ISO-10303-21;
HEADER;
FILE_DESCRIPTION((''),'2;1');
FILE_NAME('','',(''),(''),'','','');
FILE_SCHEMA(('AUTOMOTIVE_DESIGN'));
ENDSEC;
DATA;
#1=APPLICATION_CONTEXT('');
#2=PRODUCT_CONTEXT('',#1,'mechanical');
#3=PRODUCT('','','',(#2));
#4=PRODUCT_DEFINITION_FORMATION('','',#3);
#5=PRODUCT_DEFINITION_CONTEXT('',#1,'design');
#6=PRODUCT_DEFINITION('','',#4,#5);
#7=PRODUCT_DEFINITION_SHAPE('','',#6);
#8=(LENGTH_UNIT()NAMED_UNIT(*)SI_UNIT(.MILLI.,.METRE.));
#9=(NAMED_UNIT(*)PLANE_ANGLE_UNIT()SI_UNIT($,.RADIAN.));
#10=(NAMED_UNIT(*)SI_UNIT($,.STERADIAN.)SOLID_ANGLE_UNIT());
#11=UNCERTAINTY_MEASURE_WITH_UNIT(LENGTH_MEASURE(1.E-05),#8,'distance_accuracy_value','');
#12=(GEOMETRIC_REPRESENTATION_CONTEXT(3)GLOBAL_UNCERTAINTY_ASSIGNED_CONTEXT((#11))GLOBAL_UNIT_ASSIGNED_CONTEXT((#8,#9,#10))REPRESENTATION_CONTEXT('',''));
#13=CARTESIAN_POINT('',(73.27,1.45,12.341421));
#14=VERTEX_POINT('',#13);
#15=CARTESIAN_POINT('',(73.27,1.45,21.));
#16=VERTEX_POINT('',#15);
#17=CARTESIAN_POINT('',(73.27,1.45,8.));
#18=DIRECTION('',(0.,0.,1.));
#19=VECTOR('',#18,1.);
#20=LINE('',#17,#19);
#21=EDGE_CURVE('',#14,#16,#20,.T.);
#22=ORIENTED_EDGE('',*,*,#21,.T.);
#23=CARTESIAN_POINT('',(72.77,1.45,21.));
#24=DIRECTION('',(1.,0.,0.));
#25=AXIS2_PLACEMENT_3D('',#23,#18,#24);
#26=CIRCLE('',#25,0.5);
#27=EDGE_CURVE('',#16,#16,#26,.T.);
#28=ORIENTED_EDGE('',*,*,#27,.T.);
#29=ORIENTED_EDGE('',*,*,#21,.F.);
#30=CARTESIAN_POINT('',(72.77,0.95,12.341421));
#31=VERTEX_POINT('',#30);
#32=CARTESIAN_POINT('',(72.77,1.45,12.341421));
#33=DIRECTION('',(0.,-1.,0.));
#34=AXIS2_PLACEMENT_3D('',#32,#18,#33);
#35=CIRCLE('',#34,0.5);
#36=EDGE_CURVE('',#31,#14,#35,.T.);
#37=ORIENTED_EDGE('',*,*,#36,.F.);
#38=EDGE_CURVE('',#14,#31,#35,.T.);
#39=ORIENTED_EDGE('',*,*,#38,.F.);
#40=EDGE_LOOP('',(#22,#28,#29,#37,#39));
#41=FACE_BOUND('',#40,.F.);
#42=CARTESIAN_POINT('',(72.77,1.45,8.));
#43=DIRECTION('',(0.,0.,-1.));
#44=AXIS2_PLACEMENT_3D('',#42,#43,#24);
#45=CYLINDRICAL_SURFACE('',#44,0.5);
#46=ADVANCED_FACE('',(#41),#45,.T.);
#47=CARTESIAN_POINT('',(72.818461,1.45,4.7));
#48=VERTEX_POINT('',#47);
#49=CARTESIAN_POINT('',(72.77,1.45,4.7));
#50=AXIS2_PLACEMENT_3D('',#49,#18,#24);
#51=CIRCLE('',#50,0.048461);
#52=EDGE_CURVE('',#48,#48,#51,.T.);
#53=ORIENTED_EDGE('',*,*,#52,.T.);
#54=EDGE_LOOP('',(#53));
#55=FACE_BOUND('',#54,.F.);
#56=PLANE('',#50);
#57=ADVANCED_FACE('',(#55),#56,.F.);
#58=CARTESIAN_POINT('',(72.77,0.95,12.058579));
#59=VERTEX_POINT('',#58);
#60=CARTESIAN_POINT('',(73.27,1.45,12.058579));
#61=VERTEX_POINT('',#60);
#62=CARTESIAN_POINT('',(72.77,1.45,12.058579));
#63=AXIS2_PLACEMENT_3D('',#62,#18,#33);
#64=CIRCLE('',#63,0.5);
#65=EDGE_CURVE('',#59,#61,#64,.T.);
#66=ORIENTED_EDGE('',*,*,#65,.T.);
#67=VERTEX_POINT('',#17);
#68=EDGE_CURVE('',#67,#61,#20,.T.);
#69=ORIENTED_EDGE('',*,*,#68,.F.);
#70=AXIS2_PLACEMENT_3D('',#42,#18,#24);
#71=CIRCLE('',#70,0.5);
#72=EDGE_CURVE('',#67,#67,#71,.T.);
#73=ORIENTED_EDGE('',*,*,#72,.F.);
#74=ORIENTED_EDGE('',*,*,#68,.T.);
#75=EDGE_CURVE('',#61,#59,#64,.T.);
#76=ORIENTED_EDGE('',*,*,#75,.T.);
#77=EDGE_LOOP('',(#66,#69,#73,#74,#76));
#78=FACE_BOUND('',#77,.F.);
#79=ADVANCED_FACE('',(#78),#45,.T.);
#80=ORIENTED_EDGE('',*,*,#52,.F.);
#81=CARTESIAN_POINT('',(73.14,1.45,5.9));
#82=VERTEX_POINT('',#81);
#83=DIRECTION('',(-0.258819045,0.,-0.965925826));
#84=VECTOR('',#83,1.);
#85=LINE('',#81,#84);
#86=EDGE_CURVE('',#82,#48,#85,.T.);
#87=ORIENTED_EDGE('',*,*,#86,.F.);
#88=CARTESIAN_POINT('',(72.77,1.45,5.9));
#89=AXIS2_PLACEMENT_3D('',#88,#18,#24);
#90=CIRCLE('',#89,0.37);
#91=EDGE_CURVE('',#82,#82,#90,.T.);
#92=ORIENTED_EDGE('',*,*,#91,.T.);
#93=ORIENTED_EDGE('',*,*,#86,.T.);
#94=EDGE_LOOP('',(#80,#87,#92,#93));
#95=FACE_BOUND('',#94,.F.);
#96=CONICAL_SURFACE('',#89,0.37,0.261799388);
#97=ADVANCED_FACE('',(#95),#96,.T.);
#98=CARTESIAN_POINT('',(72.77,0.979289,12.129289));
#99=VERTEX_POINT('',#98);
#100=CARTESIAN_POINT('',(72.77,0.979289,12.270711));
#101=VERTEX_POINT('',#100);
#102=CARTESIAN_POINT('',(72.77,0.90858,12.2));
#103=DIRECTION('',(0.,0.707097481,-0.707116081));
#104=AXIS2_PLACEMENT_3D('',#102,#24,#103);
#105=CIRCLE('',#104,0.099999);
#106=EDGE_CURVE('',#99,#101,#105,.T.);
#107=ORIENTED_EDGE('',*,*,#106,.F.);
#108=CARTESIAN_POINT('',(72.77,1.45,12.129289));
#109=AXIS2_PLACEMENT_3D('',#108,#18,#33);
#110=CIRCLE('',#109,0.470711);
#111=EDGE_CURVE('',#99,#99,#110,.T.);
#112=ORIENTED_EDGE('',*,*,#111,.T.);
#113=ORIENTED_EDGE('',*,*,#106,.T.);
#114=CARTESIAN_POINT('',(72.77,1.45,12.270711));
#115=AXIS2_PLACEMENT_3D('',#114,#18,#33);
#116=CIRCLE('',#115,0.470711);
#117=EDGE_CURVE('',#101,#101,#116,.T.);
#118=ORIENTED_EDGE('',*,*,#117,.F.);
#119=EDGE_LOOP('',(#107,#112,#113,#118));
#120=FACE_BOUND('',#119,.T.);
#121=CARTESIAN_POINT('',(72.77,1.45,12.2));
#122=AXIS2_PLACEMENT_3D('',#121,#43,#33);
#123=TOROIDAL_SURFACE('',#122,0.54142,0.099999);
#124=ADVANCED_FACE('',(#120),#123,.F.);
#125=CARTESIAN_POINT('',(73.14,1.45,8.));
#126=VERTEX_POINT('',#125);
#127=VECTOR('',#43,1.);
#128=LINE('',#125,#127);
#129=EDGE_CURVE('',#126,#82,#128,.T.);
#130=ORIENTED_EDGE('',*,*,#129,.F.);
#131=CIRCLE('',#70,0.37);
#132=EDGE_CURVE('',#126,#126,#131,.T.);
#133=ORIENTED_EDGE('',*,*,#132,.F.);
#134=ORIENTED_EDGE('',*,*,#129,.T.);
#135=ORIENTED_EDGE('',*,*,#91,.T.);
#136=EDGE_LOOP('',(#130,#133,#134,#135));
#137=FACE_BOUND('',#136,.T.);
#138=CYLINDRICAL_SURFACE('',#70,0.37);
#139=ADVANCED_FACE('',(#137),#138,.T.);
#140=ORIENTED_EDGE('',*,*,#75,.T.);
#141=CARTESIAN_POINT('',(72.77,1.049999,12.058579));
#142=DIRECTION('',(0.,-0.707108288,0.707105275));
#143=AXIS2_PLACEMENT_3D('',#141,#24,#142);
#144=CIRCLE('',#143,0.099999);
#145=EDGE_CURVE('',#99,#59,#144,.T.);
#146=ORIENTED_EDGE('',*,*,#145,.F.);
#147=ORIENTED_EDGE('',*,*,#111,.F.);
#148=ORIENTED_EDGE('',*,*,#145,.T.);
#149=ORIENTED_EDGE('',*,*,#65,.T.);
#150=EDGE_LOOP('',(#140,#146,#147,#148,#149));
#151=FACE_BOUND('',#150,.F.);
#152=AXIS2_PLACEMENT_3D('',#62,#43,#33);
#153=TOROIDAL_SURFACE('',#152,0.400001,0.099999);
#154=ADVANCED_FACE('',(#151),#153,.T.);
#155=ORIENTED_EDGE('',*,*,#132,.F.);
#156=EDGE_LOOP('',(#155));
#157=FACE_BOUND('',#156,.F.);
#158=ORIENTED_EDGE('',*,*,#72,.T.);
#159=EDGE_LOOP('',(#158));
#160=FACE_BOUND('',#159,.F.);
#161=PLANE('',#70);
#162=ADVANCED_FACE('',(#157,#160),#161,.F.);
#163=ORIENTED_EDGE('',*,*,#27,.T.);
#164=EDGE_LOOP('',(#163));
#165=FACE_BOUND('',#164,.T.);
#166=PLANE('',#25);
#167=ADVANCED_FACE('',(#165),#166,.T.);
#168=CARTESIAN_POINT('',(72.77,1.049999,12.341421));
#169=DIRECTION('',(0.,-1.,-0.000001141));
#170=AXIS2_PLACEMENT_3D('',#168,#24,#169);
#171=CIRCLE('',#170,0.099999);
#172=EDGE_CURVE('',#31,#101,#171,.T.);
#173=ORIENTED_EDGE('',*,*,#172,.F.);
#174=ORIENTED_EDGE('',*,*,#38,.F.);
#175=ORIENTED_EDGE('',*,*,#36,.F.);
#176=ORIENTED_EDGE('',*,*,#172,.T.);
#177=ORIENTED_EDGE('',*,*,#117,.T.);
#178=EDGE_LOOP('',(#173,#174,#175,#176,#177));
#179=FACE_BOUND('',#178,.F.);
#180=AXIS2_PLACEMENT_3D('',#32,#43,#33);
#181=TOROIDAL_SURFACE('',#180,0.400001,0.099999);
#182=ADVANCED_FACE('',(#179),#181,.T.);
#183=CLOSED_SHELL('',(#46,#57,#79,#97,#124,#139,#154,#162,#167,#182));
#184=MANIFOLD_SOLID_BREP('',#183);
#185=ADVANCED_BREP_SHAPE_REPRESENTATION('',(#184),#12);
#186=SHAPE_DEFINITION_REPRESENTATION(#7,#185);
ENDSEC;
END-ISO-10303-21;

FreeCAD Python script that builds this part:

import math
import FreeCAD as App
import Part
import Sketcher


def edges_at(feature, points):
    """Names of the edges that pass closest to the given points."""
    edges = feature.Shape.Edges
    near = lambda p: min(range(len(edges)), key=lambda i: edges[i].distToShape(Part.Vertex(*p))[0])
    return sorted({f"Edge{near(p) + 1}" for p in points})

doc = App.newDocument("Part")
body = doc.addObject("PartDesign::Body", "Body")

# Sketch on XY plane
sketch1 = doc.addObject("Sketcher::SketchObject", "Sketch")
body.addObject(sketch1)
sketch1.AttachmentSupport = (doc.XY_Plane, [""])
sketch1.MapMode = "FlatFace"
sketch1.addGeometry(Part.Circle(App.Vector(0, 0, 0), App.Vector(0, 0, 1), 0.5), False)
sketch1.addConstraint(Sketcher.Constraint("Coincident", 0, 3, -1, 1))
sketch1.addConstraint(Sketcher.Constraint("Diameter", 0, 1.0))
pad1 = doc.addObject("PartDesign::Pad", "Pad")
body.addObject(pad1)
pad1.Profile = sketch1
pad1.Length = 13

# Sketch on YZ plane
sketch2 = doc.addObject("Sketcher::SketchObject", "Sketch001")
body.addObject(sketch2)
sketch2.AttachmentSupport = (doc.YZ_Plane, [""])
sketch2.MapMode = "FlatFace"
sketch2.addGeometry(Part.ArcOfCircle(Part.Circle(App.Vector(-0.400001, 4.341421, 0), App.Vector(0, 0, 1), 0.099999), math.radians(-179.999935), math.radians(-135.000122)), False)
sketch2.addGeometry(Part.LineSegment(App.Vector(-0.5, 4.341421, 0), App.Vector(-0.5, 4.058579, 0)), False)
sketch2.addGeometry(Part.ArcOfCircle(Part.Circle(App.Vector(-0.400001, 4.058579, 0), App.Vector(0, 0, 1), 0.099999), math.radians(135.000122), math.radians(179.999935)), False)
sketch2.addGeometry(Part.ArcOfCircle(Part.Circle(App.Vector(-0.54142, 4.2, 0), App.Vector(0, 0, 1), 0.099999), math.radians(-45.000754), math.radians(45.000754)), False)
sketch2.addConstraint(Sketcher.Constraint("Tangent", 0, 1, 1, 1))
sketch2.addConstraint(Sketcher.Constraint("Tangent", 1, 2, 2, 2))
sketch2.addConstraint(Sketcher.Constraint("Coincident", 2, 1, 3, 1))
sketch2.addConstraint(Sketcher.Constraint("Coincident", 3, 2, 0, 2))
sketch2.addConstraint(Sketcher.Constraint("Vertical", 1))
sketch2.addConstraint(Sketcher.Constraint("Equal", 0, 2))
sketch2.addConstraint(Sketcher.Constraint("Equal", 2, 3))
sketch2.addConstraint(Sketcher.Constraint("Vertical", 2, 1, 3, 2))
sketch2.addConstraint(Sketcher.Constraint("Radius", 0, 0.099999))
sketch2.addConstraint(Sketcher.Constraint("DistanceX", 0, 3, -1, 1, 0.400001))
sketch2.addConstraint(Sketcher.Constraint("DistanceY", -1, 1, 3, 3, 4.2))
sketch2.addConstraint(Sketcher.Constraint("DistanceY", 1, 2, 1, 1, 0.282842))
sketch2.addConstraint(Sketcher.Constraint("DistanceX", 2, 1, -1, 1, 0.470711))
groove = doc.addObject("PartDesign::Groove", "Groove")
body.addObject(groove)
groove.Profile = sketch2
groove.ReferenceAxis = (sketch2, ["V_Axis"])
groove.Angle = 360

# Sketch on XY plane
sketch3 = doc.addObject("Sketcher::SketchObject", "Sketch002")
body.addObject(sketch3)
sketch3.AttachmentSupport = (doc.XY_Plane, [""])
sketch3.MapMode = "FlatFace"
sketch3.addGeometry(Part.Circle(App.Vector(0, 0, 0), App.Vector(0, 0, 1), 0.37), False)
sketch3.addConstraint(Sketcher.Constraint("Coincident", 0, 3, -1, 1))
sketch3.addConstraint(Sketcher.Constraint("Diameter", 0, 0.74))
pad2 = doc.addObject("PartDesign::Pad", "Pad001")
body.addObject(pad2)
pad2.Profile = sketch3
pad2.Length = 3.3
pad2.Reversed = True
doc.recompute()

chamfer = doc.addObject("PartDesign::Chamfer", "Chamfer")
body.addObject(chamfer)
chamfer.Base = (pad2, edges_at(pad2, [(-0.37, 0, -3.3)]))
chamfer.ChamferType = "Distance and Angle"
chamfer.Size = 1.2
chamfer.Angle = 15
body2 = doc.addObject("PartDesign::Body", "Body001")
doc.recompute()

body.Placement = App.Placement(App.Vector(72, -1, 8), App.Rotation(App.Vector(0, 0, 1), 0))
boolean = doc.addObject("PartDesign::Boolean", "Boolean")
body2.addObject(boolean)
boolean.Type = "Fuse"
boolean.addObjects([body])
body3 = doc.addObject("PartDesign::Body", "Body002")
doc.recompute()

body2.Placement = App.Placement(App.Vector(-72, 1, -8), App.Rotation(App.Vector(0, 0, 1), 0))
boolean2 = doc.addObject("PartDesign::Boolean", "Boolean001")
body3.addObject(boolean2)
boolean2.Type = "Fuse"
boolean2.addObjects([body2])
body4 = doc.addObject("PartDesign::Body", "Body003")
doc.recompute()

body3.Placement = App.Placement(App.Vector(72.77, 1.45, 8), App.Rotation(App.Vector(0, 0, 1), 0))
boolean3 = doc.addObject("PartDesign::Boolean", "Boolean002")
body4.addObject(boolean3)
boolean3.Type = "Fuse"
boolean3.addObjects([body3])

doc.recompute()
